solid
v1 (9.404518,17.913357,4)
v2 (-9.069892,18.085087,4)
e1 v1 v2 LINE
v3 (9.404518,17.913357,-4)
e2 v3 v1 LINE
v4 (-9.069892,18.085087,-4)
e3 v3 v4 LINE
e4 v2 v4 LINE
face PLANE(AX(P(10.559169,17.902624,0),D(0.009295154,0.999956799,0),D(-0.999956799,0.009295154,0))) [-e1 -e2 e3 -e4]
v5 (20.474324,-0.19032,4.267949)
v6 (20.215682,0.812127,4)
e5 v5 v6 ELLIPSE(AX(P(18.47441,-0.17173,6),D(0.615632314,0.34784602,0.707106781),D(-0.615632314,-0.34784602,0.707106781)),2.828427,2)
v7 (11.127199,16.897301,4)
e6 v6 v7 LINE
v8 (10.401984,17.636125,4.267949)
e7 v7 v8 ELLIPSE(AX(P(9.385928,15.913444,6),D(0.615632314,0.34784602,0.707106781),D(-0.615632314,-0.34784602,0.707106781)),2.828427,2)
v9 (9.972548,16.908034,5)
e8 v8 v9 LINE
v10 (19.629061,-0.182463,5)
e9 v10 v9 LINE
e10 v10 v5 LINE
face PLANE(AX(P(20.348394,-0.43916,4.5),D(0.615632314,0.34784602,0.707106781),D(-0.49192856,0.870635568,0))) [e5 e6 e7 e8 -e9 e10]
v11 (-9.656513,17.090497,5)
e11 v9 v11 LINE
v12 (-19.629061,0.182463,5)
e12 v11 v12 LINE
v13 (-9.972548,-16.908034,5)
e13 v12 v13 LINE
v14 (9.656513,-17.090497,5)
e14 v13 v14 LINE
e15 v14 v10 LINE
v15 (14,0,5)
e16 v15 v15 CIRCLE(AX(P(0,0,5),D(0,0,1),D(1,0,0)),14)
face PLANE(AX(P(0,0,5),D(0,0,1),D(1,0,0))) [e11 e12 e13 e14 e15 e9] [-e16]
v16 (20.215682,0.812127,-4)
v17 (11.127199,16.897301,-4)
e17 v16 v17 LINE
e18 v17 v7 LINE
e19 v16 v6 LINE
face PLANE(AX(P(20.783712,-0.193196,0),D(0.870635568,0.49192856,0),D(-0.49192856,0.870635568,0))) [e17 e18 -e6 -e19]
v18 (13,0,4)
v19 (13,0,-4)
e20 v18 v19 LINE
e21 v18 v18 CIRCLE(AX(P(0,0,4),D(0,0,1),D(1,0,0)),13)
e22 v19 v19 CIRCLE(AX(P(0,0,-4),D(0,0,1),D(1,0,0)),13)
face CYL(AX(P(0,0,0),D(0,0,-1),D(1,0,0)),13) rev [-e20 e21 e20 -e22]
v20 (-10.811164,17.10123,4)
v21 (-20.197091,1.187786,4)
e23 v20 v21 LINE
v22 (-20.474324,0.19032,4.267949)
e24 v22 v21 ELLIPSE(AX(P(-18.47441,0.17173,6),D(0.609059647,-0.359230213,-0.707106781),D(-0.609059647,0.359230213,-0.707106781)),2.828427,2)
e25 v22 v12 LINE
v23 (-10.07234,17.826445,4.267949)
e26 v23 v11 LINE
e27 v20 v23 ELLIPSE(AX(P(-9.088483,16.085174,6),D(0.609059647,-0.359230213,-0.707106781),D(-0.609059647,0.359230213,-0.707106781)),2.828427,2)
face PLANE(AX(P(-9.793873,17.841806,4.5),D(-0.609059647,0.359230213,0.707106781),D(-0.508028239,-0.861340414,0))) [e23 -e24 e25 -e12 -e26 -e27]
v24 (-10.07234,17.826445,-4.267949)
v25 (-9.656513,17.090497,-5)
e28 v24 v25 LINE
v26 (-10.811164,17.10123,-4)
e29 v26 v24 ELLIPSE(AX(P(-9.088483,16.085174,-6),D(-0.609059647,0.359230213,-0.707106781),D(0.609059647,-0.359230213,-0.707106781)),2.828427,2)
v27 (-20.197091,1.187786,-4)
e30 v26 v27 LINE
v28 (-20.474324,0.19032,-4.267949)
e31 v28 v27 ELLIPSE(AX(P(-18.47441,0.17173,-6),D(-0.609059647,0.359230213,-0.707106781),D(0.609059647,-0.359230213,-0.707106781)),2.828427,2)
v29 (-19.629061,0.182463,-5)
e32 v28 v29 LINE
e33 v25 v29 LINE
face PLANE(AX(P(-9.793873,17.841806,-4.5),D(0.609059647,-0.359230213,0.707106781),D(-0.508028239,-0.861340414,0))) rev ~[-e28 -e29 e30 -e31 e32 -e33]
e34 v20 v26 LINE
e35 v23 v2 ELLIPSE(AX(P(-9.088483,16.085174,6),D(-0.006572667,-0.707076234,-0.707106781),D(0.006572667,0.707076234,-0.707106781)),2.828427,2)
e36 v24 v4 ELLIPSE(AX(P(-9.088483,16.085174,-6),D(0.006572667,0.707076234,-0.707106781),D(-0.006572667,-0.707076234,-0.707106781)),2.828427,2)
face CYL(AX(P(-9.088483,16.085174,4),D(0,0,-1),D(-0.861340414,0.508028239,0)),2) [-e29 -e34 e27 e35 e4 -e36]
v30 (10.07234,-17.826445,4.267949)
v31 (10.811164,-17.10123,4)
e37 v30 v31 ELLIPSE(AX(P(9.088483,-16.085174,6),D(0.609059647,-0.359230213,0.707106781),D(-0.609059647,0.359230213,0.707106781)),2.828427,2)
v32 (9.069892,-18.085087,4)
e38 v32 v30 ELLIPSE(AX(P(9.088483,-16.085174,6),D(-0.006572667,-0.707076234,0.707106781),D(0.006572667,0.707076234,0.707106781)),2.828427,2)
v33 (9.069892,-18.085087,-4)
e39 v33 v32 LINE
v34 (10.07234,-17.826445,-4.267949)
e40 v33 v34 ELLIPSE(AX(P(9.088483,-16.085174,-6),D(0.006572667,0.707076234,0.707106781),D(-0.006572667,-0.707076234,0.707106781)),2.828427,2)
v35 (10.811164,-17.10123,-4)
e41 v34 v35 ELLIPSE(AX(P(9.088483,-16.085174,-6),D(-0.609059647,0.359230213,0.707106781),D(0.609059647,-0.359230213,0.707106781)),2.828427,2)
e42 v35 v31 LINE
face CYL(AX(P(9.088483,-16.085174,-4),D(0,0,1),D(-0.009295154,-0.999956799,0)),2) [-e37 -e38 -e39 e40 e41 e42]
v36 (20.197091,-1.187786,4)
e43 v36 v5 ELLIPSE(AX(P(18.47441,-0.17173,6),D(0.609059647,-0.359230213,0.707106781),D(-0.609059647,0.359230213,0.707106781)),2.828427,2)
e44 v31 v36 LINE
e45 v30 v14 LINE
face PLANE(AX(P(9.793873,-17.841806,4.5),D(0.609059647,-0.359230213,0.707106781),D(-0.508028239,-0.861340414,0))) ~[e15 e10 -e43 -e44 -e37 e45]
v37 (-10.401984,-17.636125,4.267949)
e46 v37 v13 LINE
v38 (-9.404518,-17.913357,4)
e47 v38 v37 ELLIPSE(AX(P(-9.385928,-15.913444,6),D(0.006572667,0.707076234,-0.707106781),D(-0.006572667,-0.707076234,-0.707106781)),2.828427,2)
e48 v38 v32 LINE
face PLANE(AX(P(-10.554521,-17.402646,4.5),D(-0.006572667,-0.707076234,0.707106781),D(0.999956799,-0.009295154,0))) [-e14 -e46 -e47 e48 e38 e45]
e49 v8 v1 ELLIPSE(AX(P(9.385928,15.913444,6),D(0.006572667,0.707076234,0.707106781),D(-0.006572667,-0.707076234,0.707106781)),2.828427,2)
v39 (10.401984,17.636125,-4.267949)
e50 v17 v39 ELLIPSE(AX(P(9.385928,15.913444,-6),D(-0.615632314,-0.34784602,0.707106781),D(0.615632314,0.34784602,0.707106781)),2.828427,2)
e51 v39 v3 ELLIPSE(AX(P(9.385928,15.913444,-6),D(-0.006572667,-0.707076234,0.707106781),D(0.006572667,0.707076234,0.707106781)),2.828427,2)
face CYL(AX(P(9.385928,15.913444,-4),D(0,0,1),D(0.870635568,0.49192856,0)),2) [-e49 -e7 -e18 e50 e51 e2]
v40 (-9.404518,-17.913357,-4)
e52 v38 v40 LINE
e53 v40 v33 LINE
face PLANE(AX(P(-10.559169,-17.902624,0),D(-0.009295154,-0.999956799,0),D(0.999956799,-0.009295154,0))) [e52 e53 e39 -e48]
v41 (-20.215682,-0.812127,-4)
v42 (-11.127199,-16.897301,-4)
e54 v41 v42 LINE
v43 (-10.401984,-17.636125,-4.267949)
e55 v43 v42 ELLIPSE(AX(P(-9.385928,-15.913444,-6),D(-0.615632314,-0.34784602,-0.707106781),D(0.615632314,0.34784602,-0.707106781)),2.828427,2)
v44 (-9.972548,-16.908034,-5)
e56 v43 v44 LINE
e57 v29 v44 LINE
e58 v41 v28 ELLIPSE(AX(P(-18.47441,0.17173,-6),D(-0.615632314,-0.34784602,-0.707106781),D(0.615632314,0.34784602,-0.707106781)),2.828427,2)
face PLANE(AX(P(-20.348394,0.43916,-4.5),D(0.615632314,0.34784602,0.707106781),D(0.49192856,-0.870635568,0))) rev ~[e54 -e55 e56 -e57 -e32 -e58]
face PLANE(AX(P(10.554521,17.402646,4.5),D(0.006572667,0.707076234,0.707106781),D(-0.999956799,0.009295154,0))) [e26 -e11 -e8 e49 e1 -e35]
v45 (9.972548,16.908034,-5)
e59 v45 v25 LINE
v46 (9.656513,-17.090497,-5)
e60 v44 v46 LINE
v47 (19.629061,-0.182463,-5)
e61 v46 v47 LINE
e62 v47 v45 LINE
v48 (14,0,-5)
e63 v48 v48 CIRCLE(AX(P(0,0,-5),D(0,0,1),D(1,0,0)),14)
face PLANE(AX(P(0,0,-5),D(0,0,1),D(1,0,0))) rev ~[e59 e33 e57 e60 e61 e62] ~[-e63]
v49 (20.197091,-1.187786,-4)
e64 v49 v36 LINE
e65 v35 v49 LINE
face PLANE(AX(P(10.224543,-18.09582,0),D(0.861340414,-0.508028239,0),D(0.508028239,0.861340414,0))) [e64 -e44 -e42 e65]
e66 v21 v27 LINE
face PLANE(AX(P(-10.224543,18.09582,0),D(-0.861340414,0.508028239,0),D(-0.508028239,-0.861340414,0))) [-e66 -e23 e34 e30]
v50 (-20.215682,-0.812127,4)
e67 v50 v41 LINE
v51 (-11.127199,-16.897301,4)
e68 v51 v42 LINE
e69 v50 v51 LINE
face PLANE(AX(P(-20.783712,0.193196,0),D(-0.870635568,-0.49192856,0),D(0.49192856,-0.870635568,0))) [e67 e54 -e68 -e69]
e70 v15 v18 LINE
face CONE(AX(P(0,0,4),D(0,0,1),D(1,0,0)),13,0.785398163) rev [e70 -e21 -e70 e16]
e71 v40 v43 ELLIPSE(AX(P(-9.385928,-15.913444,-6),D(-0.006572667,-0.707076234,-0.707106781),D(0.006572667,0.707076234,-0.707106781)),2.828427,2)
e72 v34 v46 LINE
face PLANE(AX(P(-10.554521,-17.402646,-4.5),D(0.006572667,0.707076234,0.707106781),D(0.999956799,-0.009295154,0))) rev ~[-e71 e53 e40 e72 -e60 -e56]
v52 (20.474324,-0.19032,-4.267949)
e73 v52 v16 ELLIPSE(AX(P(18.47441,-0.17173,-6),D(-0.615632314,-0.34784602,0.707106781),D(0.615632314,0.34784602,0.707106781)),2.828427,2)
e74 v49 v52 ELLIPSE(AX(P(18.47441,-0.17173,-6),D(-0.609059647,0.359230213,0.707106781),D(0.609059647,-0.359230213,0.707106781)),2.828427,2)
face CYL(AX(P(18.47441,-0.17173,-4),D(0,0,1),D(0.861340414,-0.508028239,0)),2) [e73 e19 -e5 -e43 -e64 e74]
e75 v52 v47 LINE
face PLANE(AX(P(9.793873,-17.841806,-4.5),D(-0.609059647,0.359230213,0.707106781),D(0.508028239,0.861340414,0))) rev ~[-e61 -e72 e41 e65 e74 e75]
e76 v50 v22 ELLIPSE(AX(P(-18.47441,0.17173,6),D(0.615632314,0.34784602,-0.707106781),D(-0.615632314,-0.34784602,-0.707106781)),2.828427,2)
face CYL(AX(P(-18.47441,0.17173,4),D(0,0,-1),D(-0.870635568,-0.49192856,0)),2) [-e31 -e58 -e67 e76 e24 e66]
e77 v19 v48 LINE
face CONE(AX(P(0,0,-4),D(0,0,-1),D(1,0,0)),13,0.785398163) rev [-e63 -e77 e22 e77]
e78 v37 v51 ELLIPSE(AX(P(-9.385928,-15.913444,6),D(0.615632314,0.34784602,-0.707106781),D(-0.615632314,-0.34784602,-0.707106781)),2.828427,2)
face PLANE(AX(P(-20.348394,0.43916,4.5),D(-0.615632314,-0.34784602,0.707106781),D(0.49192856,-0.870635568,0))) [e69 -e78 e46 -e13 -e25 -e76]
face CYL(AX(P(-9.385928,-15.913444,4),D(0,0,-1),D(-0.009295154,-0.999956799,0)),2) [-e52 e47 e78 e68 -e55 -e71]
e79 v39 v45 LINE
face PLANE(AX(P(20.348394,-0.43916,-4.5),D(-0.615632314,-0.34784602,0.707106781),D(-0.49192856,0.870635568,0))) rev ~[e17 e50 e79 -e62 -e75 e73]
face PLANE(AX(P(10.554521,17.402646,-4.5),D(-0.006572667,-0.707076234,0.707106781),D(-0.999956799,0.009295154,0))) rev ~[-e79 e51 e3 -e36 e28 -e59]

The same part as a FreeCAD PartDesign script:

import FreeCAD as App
import Part
import Sketcher


def edges_at(feature, points):
    """Names of the edges that pass closest to the given points."""
    edges = feature.Shape.Edges
    near = lambda p: min(range(len(edges)), key=lambda i: edges[i].distToShape(Part.Vertex(*p))[0])
    return sorted({f"Edge{near(p) + 1}" for p in points})


def add_polygon(sketch, points):
    """Adds a closed chain of lines whose ends are joined by coincident constraints."""
    first, n = sketch.GeometryCount, len(points)
    for a, b in zip(points, points[1:] + points[:1]):
        sketch.addGeometry(Part.LineSegment(App.Vector(*a, 0), App.Vector(*b, 0)), False)
    for i in range(n):
        sketch.addConstraint(Sketcher.Constraint("Coincident", first + i, 2, first + (i + 1) % n, 1))

doc = App.newDocument("Part")
body = doc.addObject("PartDesign::Body", "Body")

# Sketch on XY plane
sketch1 = body.newObject("Sketcher::SketchObject", "Sketch")
sketch1.AttachmentSupport = (doc.getObject("XY_Plane"), [""])
sketch1.MapMode = "FlatFace"
add_polygon(sketch1, [(-11, -18), (10, -18), (21, 0), (11, 18), (-10, 18), (-21, 0)])  # lines 0-5
sketch1.addGeometry(Part.Circle(App.Vector(0, 0, 0), App.Vector(0, 0, 1), 13), False)  # 6
sketch1.addConstraint([
    Sketcher.Constraint("Coincident", 6, 3, -1, 1),
    Sketcher.Constraint("Symmetric", 0, 2, 3, 2, -1, 1),
    Sketcher.Constraint("Symmetric", 1, 2, 4, 2, -1, 1),
    Sketcher.Constraint("Symmetric", 2, 2, 5, 2, -1, 1),
    Sketcher.Constraint("Equal", 0, 1),
    Sketcher.Constraint("Equal", 1, 2),
    Sketcher.Constraint("Diameter", 6, 26.0),
    Sketcher.Constraint("Distance", 0, 20.78461),
    Sketcher.Constraint("DistanceY", 0, 2, -1, 1, 18.09582),
    Sketcher.Constraint("DistanceX", -1, 1, 1, 2, 20.783712),
    Sketcher.Constraint("DistanceX", -1, 1, 2, 2, 10.559169),
])
pad1 = body.newObject("PartDesign::Pad", "Pad")
pad1.Profile = sketch1
pad1.Length = 10
pad1.Midplane = True
doc.recompute()

chamfer = body.newObject("PartDesign::Chamfer", "Chamfer")
chamfer.Base = (pad1, edges_at(pad1, [
    (-15.671, -8.855, 5),
    (-0.167, -17.999, 5),
    (15.504, -9.145, 5),
    (15.671, 8.855, 5),
    (0.167, 17.999, 5),
    (-15.504, 9.145, 5),
    (-13, 0, 5),
    (-15.671, -8.855, -5),
    (-0.167, -17.999, -5),
    (15.504, -9.145, -5),
    (15.671, 8.855, -5),
    (0.167, 17.999, -5),
    (-15.504, 9.145, -5),
    (-13, 0, -5),
]))
chamfer.Size = 1
doc.recompute()

fillet = body.newObject("PartDesign::Fillet", "Fillet")
fillet.Base = (chamfer, edges_at(chamfer, [
    (10.559, 17.903, 0),
    (-10.225, 18.096, 0),
    (-20.784, 0.193, 0),
    (-10.559, -17.903, 0),
    (10.225, -18.096, 0),
    (20.784, -0.193, 0),
]))
fillet.Radius = 2

doc.recompute()
